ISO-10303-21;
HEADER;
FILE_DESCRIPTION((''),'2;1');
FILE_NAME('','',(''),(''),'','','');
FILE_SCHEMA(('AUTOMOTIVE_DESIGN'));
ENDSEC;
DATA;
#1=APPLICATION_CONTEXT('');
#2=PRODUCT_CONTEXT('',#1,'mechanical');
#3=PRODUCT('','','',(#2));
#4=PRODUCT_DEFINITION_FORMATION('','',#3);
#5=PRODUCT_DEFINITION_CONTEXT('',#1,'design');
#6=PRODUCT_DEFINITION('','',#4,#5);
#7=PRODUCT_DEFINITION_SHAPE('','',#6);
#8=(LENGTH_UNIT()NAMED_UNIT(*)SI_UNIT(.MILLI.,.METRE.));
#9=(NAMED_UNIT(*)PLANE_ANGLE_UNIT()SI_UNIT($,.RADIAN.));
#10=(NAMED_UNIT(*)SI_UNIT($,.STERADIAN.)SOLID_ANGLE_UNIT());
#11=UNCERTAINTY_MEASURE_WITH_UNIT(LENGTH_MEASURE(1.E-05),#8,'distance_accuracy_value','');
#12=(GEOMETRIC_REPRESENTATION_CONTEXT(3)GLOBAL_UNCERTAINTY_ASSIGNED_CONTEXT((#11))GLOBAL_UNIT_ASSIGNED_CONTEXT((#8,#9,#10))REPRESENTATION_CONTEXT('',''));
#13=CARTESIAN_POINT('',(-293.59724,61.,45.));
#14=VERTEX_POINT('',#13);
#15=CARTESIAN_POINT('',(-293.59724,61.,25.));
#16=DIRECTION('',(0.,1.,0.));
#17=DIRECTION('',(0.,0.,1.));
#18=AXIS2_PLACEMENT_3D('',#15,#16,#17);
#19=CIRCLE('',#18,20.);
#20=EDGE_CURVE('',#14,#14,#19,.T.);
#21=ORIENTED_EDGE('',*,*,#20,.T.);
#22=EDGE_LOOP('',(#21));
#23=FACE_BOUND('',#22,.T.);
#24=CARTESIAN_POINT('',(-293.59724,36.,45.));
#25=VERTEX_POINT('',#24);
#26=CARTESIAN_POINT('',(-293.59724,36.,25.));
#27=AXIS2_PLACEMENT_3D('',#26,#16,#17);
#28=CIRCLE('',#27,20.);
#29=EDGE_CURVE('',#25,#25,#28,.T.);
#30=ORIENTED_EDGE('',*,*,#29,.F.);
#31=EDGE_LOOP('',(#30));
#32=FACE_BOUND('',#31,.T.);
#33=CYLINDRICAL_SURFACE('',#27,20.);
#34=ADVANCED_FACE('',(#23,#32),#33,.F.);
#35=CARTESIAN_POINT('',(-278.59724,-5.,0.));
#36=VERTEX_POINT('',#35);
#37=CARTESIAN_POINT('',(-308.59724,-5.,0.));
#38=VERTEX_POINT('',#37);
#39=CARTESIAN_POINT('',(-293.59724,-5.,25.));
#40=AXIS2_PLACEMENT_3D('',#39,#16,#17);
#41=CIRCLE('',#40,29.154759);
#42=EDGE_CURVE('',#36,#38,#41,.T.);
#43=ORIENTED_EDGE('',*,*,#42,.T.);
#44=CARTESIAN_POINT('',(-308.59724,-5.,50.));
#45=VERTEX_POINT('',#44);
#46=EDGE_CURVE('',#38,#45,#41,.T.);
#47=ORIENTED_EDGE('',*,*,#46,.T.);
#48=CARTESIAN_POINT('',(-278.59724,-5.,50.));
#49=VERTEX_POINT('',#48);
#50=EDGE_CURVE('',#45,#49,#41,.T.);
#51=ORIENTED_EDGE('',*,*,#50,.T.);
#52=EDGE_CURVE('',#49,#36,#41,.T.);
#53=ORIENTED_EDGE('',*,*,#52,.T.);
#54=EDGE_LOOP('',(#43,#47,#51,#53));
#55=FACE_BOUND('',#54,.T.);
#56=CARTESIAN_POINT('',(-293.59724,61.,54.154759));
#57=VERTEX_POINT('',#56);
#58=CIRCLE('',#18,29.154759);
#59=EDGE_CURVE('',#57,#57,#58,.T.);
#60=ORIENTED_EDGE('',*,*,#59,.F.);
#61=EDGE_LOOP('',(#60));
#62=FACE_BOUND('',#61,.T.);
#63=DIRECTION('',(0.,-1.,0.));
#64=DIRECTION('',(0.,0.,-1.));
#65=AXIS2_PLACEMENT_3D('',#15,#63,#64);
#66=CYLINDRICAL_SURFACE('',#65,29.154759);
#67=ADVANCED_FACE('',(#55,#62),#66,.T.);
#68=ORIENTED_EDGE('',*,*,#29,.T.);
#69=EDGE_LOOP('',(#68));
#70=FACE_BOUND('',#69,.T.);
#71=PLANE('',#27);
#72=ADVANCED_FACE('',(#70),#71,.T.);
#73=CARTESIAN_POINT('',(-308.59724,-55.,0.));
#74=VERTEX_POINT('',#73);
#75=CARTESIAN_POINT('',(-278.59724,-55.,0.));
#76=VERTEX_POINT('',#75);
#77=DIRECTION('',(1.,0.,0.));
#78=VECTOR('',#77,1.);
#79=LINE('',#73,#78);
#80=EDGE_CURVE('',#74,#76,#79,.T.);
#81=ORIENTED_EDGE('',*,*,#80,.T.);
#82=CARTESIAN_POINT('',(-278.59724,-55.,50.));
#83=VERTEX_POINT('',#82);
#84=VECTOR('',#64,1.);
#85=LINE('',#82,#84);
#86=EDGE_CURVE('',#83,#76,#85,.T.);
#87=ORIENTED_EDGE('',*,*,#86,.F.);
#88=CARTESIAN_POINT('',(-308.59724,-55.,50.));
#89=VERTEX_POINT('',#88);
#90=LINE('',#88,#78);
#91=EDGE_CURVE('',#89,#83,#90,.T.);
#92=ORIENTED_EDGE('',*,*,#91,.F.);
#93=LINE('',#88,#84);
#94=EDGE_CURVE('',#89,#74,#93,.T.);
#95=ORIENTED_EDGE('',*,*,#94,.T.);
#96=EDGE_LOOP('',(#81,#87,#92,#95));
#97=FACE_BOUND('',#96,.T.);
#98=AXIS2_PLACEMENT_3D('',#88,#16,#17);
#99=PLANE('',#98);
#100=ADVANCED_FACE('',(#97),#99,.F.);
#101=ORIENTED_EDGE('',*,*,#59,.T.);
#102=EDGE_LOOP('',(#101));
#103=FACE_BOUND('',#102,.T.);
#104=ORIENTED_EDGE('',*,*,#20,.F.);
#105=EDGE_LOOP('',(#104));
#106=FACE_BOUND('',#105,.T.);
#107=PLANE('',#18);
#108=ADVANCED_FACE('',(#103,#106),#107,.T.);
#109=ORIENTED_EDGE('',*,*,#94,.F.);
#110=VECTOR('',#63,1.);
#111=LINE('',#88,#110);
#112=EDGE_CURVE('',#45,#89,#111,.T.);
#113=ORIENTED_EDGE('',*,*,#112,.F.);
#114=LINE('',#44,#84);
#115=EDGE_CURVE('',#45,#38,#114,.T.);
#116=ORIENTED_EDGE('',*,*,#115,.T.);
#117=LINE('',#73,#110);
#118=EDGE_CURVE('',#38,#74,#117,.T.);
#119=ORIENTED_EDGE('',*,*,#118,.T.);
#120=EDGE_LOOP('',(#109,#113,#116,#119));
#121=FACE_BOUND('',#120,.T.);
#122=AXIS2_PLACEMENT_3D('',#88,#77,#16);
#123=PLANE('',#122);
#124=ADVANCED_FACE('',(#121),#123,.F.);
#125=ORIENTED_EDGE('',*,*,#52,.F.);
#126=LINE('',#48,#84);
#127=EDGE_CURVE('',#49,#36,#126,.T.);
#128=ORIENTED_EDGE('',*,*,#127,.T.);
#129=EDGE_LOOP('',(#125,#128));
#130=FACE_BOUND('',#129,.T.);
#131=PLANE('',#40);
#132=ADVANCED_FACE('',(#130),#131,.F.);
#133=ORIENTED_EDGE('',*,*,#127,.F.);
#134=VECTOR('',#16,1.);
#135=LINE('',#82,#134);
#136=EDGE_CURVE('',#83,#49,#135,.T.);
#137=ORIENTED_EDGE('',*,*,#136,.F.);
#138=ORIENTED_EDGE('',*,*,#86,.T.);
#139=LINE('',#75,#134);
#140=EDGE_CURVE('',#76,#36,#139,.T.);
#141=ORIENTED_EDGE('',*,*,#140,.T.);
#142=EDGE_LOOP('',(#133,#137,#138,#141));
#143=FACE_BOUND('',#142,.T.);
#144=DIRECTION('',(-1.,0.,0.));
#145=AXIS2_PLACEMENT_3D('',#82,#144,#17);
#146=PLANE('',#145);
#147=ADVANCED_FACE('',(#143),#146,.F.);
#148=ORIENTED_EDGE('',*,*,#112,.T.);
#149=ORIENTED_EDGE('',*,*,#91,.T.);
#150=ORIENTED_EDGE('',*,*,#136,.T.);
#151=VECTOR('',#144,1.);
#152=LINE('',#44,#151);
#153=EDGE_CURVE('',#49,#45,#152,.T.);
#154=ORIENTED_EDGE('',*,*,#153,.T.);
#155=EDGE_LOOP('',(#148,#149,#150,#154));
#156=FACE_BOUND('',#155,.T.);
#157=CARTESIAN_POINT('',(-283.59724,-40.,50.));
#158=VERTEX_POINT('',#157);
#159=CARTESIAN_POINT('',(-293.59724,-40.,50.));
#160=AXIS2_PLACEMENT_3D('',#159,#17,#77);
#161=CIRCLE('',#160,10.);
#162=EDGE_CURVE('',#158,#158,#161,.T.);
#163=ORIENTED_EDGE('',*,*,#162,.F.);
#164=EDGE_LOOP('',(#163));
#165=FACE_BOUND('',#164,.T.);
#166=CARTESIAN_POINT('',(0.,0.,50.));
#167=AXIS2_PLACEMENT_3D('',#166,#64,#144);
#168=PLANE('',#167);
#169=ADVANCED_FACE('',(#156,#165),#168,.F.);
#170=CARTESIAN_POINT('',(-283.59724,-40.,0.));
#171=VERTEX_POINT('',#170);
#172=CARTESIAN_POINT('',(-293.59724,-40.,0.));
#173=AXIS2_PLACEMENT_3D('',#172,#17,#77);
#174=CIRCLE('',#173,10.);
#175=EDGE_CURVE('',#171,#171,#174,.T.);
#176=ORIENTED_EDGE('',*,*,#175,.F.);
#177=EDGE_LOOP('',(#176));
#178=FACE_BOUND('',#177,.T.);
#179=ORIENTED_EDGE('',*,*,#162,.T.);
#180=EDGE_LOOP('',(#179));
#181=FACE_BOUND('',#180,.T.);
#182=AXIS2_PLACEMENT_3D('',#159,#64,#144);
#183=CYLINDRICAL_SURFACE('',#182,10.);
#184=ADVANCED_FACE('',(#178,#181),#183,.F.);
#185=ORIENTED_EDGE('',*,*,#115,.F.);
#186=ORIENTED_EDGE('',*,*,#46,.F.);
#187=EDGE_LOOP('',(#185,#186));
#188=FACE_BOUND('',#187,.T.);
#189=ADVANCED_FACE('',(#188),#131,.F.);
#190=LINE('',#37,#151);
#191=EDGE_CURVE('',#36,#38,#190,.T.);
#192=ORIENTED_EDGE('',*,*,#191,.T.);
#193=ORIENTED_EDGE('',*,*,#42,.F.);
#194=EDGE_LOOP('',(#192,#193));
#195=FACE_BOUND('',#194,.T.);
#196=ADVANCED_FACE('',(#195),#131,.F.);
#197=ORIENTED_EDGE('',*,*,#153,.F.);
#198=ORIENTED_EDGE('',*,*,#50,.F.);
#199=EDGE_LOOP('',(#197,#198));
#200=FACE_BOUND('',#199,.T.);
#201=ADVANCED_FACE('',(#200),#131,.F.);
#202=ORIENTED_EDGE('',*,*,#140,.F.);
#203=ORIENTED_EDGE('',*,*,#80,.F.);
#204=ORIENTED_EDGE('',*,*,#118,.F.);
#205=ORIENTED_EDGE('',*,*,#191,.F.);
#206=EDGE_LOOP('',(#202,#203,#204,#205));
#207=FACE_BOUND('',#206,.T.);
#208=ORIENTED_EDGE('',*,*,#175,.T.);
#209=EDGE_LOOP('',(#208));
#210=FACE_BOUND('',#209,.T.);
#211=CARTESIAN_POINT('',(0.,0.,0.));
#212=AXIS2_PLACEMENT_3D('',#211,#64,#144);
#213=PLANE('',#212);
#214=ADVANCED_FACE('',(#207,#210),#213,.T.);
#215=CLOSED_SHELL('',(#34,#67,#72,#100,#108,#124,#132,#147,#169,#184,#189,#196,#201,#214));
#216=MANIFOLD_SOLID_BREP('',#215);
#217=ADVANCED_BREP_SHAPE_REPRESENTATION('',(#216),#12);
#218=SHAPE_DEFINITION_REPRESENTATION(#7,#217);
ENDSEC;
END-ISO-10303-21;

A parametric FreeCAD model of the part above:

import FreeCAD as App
import Part
import Sketcher
Q = App.Units.Quantity


def add_polygon(sketch, points):
    """Adds a closed chain of lines whose ends are joined by coincident constraints."""
    first, n = sketch.GeometryCount, len(points)
    for a, b in zip(points, points[1:] + points[:1]):
        sketch.addGeometry(Part.LineSegment(App.Vector(*a, 0), App.Vector(*b, 0)), False)
    for i in range(n):
        sketch.addConstraint(Sketcher.Constraint("Coincident", first + i, 2, first + (i + 1) % n, 1))

doc = App.newDocument("Part")
params = doc.addObject("Spreadsheet::Sheet", "Params")
for row, (alias, value) in enumerate([
    ("sketch1_diameter", "20 mm"),
    ("sketch1_width", "30 mm"),
    ("sketch1_height", "50 mm"),
    ("pad1_length", "50 mm"),
    ("pad2_length", "66 mm"),
    ("sketch3_diameter", "40 mm"),
    ("pocket1_length", "25 mm"),
], start=1):
    params.set(f"A{row}", alias)
    params.set(f"B{row}", "=" + value)
    params.setAlias(f"B{row}", alias)

body = doc.addObject("PartDesign::Body", "Body")

# Sketch on XY plane
sketch1 = body.newObject("Sketcher::SketchObject", "Sketch")
sketch1.AttachmentSupport = (doc.getObject("XY_Plane"), [""])
sketch1.MapMode = "FlatFace"
add_polygon(sketch1, [(-308.59724, -5), (-308.59724, -55), (-278.59724, -55), (-278.59724, -5)])  # lines 0-3
sketch1.addGeometry(Part.Circle(App.Vector(-293.59724, -40, 0), App.Vector(0, 0, 1), 10), False)  # 4
sketch1.addConstraint([
    Sketcher.Constraint("Vertical", 0),
    Sketcher.Constraint("Horizontal", 1),
    Sketcher.Constraint("Vertical", 2),
    Sketcher.Constraint("Horizontal", 3),
    Sketcher.Constraint("Diameter", 4, Q("20 mm")),
    Sketcher.Constraint("DistanceX", 1, 1, 1, 2, Q("30 mm")),
    Sketcher.Constraint("DistanceY", 0, 2, 0, 1, Q("50 mm")),
    Sketcher.Constraint("DistanceY", 4, 3, -1, 1, Q("40 mm")),
    Sketcher.Constraint("DistanceY", 0, 2, -1, 1, Q("55 mm")),
    Sketcher.Constraint("DistanceX", 0, 2, 4, 3, Q("15 mm")),
    Sketcher.Constraint("DistanceX", 4, 3, -1, 1, Q("293.59724 mm")),
])
sketch1.setExpression("Constraints[8]", "Params.sketch1_diameter")
sketch1.setExpression("Constraints[9]", "Params.sketch1_width")
sketch1.setExpression("Constraints[10]", "Params.sketch1_height")
pad1 = body.newObject("PartDesign::Pad", "Pad")
pad1.Profile = sketch1
pad1.setExpression("Length", "Params.pad1_length")

# Sketch on XZ plane
sketch2 = body.newObject("Sketcher::SketchObject", "Sketch001")
sketch2.AttachmentSupport = (doc.getObject("XZ_Plane"), [""])
sketch2.MapMode = "FlatFace"
sketch2.AttachmentOffset = App.Placement(App.Vector(0, 0, 5), App.Rotation())
sketch2.addGeometry(Part.Circle(App.Vector(-293.59724, 25, 0), App.Vector(0, 0, 1), 29.154759), False)
sketch2.addConstraint([
    Sketcher.Constraint("DistanceY", -1, 1, 0, 3, Q("25 mm")),
    Sketcher.Constraint("Diameter", 0, Q("58.309519 mm")),
    Sketcher.Constraint("DistanceX", 0, 3, -1, 1, Q("293.59724 mm")),
])
pad2 = body.newObject("PartDesign::Pad", "Pad001")
pad2.Profile = sketch2
pad2.setExpression("Length", "Params.pad2_length")
pad2.Reversed = True

# Sketch on XZ plane
sketch3 = body.newObject("Sketcher::SketchObject", "Sketch002")
sketch3.AttachmentSupport = (doc.getObject("XZ_Plane"), [""])
sketch3.MapMode = "FlatFace"
sketch3.AttachmentOffset = App.Placement(App.Vector(0, 0, -61), App.Rotation())
sketch3.addGeometry(Part.Circle(App.Vector(-293.59724, 25, 0), App.Vector(0, 0, 1), 20), False)
sketch3.addConstraint([
    Sketcher.Constraint("Diameter", 0, Q("40 mm")),
    Sketcher.Constraint("DistanceY", -1, 1, 0, 3, Q("25 mm")),
    Sketcher.Constraint("DistanceX", 0, 3, -1, 1, Q("293.59724 mm")),
])
sketch3.setExpression("Constraints[0]", "Params.sketch3_diameter")
pocket1 = body.newObject("PartDesign::Pocket", "Pocket")
pocket1.Profile = sketch3
pocket1.setExpression("Length", "Params.pocket1_length")
pocket1.Reversed = True

doc.recompute()
